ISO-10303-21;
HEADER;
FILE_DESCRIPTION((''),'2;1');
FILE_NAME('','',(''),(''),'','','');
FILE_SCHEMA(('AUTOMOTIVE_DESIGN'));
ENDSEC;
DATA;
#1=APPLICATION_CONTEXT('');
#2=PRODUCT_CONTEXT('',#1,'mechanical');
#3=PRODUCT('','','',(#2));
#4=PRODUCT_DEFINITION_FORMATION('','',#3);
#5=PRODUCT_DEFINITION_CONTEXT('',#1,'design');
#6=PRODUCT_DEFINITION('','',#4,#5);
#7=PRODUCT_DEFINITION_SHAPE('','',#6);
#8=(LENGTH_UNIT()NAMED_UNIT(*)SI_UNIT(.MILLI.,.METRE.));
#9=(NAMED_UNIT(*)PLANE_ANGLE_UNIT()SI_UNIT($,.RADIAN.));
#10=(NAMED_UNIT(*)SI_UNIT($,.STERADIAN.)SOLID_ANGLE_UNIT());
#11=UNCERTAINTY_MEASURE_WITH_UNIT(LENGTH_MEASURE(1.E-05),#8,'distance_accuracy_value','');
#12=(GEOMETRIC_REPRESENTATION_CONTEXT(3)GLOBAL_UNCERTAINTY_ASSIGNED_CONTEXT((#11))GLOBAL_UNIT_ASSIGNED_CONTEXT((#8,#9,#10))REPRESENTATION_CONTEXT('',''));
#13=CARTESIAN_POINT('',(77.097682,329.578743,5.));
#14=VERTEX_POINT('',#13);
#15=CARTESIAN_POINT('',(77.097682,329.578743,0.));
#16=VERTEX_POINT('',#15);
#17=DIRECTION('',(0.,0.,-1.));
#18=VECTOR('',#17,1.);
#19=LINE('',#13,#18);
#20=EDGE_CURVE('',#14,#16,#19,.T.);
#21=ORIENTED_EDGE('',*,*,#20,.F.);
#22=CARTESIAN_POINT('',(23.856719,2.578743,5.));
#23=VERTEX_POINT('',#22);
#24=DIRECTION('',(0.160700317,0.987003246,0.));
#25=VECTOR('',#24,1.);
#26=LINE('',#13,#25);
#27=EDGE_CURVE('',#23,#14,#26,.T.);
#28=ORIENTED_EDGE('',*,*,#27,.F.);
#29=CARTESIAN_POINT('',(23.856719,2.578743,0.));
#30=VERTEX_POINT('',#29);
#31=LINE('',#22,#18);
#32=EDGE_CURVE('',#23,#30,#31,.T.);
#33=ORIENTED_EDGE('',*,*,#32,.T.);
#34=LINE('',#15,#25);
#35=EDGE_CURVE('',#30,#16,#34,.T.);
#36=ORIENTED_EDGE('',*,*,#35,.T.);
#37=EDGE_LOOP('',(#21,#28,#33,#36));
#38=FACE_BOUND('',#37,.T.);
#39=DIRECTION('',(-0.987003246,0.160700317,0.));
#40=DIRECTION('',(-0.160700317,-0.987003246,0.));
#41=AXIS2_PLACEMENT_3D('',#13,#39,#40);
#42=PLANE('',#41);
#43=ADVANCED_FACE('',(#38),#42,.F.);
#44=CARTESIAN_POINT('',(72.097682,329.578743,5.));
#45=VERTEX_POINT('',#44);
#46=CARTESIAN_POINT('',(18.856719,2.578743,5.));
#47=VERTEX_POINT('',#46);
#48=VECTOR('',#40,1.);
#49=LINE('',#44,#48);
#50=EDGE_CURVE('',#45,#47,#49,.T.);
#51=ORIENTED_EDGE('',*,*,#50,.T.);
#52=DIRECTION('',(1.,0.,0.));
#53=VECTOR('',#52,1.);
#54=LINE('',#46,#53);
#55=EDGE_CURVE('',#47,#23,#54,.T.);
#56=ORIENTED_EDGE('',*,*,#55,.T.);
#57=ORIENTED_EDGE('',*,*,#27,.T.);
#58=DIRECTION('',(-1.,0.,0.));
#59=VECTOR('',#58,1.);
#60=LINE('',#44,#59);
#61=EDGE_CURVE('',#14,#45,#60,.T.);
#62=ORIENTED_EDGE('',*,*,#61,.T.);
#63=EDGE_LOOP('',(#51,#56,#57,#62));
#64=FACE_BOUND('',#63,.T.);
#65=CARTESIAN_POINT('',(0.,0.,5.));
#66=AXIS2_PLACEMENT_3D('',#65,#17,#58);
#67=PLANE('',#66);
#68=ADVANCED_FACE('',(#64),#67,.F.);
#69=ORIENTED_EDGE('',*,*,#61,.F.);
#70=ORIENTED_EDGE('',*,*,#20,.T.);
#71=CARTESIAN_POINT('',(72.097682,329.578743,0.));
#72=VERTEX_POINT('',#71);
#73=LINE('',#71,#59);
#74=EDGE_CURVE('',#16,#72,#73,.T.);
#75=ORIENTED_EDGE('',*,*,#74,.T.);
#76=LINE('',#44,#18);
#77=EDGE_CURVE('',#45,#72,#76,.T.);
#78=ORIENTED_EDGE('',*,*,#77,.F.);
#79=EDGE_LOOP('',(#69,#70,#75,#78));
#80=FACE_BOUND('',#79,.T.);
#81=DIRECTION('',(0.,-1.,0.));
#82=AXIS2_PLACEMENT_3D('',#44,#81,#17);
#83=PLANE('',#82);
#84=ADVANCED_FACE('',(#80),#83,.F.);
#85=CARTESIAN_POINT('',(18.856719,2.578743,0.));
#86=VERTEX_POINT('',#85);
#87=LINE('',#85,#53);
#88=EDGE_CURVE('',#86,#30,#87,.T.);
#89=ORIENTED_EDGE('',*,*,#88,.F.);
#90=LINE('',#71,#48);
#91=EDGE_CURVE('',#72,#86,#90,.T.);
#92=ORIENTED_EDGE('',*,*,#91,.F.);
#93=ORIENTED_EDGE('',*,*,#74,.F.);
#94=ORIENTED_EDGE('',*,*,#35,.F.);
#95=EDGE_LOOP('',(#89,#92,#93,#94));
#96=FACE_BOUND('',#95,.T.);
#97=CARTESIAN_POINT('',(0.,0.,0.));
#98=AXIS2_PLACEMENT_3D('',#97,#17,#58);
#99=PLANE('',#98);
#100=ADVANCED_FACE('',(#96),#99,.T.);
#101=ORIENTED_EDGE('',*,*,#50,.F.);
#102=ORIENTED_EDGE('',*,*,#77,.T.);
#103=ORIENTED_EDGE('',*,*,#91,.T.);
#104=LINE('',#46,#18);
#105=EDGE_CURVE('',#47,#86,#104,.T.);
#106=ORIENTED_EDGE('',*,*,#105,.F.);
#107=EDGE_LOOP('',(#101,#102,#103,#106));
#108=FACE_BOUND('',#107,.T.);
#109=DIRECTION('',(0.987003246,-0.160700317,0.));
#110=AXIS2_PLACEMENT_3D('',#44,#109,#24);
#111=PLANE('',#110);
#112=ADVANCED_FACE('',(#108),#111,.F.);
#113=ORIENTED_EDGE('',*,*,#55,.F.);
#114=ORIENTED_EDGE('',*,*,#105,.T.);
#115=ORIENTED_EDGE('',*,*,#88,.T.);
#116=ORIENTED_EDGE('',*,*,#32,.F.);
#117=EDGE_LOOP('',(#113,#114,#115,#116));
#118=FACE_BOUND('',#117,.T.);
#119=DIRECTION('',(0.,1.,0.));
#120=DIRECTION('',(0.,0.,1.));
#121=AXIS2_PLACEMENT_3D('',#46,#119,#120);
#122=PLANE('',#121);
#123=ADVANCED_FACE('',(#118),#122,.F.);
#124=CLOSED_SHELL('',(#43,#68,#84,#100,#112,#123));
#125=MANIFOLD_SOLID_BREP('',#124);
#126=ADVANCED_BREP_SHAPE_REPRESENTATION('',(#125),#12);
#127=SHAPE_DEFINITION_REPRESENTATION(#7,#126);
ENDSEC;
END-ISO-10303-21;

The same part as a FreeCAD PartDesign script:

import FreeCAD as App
import Part
import Sketcher

V = App.Vector
Q = App.Units.Quantity


def add_polygon(sketch, points):
    """Adds a closed chain of lines whose ends are joined by coincident constraints."""
    first, n = sketch.GeometryCount, len(points)
    for a, b in zip(points, points[1:] + points[:1]):
        sketch.addGeometry(Part.LineSegment(App.Vector(*a, 0), App.Vector(*b, 0)), False)
    for i in range(n):
        sketch.addConstraint(Sketcher.Constraint("Coincident", first + i, 2, first + (i + 1) % n, 1))

doc = App.newDocument("Part")
body = doc.addObject("PartDesign::Body", "Body")

# Sketch on XY plane
sketch1 = body.newObject("Sketcher::SketchObject", "Sketch")
sketch1.AttachmentSupport = (doc.getObject("XY_Plane"), [""])
sketch1.MapMode = "FlatFace"
add_polygon(sketch1, [(72, 330), (19, 3), (24, 3), (77, 330)])  # lines 0-3
sketch1.addConstraint([
    Sketcher.Constraint("Horizontal", 1),
    Sketcher.Constraint("Horizontal", 3),
    Sketcher.Constraint("Parallel", 0, 2),
    Sketcher.Constraint("DistanceX", 1, 1, 1, 2, Q("5 mm")),
    Sketcher.Constraint("DistanceY", 1, 2, 2, 2, Q("327 mm")),
    Sketcher.Constraint("Distance", 0, Q("331.305901 mm")),
    Sketcher.Constraint("DistanceX", -1, 1, 0, 2, Q("18.856719 mm")),
    Sketcher.Constraint("DistanceY", -1, 1, 0, 2, Q("2.578743 mm")),
])
pad1 = body.newObject("PartDesign::Pad", "Pad")
pad1.Profile = sketch1
pad1.Length = 5

doc.recompute()
